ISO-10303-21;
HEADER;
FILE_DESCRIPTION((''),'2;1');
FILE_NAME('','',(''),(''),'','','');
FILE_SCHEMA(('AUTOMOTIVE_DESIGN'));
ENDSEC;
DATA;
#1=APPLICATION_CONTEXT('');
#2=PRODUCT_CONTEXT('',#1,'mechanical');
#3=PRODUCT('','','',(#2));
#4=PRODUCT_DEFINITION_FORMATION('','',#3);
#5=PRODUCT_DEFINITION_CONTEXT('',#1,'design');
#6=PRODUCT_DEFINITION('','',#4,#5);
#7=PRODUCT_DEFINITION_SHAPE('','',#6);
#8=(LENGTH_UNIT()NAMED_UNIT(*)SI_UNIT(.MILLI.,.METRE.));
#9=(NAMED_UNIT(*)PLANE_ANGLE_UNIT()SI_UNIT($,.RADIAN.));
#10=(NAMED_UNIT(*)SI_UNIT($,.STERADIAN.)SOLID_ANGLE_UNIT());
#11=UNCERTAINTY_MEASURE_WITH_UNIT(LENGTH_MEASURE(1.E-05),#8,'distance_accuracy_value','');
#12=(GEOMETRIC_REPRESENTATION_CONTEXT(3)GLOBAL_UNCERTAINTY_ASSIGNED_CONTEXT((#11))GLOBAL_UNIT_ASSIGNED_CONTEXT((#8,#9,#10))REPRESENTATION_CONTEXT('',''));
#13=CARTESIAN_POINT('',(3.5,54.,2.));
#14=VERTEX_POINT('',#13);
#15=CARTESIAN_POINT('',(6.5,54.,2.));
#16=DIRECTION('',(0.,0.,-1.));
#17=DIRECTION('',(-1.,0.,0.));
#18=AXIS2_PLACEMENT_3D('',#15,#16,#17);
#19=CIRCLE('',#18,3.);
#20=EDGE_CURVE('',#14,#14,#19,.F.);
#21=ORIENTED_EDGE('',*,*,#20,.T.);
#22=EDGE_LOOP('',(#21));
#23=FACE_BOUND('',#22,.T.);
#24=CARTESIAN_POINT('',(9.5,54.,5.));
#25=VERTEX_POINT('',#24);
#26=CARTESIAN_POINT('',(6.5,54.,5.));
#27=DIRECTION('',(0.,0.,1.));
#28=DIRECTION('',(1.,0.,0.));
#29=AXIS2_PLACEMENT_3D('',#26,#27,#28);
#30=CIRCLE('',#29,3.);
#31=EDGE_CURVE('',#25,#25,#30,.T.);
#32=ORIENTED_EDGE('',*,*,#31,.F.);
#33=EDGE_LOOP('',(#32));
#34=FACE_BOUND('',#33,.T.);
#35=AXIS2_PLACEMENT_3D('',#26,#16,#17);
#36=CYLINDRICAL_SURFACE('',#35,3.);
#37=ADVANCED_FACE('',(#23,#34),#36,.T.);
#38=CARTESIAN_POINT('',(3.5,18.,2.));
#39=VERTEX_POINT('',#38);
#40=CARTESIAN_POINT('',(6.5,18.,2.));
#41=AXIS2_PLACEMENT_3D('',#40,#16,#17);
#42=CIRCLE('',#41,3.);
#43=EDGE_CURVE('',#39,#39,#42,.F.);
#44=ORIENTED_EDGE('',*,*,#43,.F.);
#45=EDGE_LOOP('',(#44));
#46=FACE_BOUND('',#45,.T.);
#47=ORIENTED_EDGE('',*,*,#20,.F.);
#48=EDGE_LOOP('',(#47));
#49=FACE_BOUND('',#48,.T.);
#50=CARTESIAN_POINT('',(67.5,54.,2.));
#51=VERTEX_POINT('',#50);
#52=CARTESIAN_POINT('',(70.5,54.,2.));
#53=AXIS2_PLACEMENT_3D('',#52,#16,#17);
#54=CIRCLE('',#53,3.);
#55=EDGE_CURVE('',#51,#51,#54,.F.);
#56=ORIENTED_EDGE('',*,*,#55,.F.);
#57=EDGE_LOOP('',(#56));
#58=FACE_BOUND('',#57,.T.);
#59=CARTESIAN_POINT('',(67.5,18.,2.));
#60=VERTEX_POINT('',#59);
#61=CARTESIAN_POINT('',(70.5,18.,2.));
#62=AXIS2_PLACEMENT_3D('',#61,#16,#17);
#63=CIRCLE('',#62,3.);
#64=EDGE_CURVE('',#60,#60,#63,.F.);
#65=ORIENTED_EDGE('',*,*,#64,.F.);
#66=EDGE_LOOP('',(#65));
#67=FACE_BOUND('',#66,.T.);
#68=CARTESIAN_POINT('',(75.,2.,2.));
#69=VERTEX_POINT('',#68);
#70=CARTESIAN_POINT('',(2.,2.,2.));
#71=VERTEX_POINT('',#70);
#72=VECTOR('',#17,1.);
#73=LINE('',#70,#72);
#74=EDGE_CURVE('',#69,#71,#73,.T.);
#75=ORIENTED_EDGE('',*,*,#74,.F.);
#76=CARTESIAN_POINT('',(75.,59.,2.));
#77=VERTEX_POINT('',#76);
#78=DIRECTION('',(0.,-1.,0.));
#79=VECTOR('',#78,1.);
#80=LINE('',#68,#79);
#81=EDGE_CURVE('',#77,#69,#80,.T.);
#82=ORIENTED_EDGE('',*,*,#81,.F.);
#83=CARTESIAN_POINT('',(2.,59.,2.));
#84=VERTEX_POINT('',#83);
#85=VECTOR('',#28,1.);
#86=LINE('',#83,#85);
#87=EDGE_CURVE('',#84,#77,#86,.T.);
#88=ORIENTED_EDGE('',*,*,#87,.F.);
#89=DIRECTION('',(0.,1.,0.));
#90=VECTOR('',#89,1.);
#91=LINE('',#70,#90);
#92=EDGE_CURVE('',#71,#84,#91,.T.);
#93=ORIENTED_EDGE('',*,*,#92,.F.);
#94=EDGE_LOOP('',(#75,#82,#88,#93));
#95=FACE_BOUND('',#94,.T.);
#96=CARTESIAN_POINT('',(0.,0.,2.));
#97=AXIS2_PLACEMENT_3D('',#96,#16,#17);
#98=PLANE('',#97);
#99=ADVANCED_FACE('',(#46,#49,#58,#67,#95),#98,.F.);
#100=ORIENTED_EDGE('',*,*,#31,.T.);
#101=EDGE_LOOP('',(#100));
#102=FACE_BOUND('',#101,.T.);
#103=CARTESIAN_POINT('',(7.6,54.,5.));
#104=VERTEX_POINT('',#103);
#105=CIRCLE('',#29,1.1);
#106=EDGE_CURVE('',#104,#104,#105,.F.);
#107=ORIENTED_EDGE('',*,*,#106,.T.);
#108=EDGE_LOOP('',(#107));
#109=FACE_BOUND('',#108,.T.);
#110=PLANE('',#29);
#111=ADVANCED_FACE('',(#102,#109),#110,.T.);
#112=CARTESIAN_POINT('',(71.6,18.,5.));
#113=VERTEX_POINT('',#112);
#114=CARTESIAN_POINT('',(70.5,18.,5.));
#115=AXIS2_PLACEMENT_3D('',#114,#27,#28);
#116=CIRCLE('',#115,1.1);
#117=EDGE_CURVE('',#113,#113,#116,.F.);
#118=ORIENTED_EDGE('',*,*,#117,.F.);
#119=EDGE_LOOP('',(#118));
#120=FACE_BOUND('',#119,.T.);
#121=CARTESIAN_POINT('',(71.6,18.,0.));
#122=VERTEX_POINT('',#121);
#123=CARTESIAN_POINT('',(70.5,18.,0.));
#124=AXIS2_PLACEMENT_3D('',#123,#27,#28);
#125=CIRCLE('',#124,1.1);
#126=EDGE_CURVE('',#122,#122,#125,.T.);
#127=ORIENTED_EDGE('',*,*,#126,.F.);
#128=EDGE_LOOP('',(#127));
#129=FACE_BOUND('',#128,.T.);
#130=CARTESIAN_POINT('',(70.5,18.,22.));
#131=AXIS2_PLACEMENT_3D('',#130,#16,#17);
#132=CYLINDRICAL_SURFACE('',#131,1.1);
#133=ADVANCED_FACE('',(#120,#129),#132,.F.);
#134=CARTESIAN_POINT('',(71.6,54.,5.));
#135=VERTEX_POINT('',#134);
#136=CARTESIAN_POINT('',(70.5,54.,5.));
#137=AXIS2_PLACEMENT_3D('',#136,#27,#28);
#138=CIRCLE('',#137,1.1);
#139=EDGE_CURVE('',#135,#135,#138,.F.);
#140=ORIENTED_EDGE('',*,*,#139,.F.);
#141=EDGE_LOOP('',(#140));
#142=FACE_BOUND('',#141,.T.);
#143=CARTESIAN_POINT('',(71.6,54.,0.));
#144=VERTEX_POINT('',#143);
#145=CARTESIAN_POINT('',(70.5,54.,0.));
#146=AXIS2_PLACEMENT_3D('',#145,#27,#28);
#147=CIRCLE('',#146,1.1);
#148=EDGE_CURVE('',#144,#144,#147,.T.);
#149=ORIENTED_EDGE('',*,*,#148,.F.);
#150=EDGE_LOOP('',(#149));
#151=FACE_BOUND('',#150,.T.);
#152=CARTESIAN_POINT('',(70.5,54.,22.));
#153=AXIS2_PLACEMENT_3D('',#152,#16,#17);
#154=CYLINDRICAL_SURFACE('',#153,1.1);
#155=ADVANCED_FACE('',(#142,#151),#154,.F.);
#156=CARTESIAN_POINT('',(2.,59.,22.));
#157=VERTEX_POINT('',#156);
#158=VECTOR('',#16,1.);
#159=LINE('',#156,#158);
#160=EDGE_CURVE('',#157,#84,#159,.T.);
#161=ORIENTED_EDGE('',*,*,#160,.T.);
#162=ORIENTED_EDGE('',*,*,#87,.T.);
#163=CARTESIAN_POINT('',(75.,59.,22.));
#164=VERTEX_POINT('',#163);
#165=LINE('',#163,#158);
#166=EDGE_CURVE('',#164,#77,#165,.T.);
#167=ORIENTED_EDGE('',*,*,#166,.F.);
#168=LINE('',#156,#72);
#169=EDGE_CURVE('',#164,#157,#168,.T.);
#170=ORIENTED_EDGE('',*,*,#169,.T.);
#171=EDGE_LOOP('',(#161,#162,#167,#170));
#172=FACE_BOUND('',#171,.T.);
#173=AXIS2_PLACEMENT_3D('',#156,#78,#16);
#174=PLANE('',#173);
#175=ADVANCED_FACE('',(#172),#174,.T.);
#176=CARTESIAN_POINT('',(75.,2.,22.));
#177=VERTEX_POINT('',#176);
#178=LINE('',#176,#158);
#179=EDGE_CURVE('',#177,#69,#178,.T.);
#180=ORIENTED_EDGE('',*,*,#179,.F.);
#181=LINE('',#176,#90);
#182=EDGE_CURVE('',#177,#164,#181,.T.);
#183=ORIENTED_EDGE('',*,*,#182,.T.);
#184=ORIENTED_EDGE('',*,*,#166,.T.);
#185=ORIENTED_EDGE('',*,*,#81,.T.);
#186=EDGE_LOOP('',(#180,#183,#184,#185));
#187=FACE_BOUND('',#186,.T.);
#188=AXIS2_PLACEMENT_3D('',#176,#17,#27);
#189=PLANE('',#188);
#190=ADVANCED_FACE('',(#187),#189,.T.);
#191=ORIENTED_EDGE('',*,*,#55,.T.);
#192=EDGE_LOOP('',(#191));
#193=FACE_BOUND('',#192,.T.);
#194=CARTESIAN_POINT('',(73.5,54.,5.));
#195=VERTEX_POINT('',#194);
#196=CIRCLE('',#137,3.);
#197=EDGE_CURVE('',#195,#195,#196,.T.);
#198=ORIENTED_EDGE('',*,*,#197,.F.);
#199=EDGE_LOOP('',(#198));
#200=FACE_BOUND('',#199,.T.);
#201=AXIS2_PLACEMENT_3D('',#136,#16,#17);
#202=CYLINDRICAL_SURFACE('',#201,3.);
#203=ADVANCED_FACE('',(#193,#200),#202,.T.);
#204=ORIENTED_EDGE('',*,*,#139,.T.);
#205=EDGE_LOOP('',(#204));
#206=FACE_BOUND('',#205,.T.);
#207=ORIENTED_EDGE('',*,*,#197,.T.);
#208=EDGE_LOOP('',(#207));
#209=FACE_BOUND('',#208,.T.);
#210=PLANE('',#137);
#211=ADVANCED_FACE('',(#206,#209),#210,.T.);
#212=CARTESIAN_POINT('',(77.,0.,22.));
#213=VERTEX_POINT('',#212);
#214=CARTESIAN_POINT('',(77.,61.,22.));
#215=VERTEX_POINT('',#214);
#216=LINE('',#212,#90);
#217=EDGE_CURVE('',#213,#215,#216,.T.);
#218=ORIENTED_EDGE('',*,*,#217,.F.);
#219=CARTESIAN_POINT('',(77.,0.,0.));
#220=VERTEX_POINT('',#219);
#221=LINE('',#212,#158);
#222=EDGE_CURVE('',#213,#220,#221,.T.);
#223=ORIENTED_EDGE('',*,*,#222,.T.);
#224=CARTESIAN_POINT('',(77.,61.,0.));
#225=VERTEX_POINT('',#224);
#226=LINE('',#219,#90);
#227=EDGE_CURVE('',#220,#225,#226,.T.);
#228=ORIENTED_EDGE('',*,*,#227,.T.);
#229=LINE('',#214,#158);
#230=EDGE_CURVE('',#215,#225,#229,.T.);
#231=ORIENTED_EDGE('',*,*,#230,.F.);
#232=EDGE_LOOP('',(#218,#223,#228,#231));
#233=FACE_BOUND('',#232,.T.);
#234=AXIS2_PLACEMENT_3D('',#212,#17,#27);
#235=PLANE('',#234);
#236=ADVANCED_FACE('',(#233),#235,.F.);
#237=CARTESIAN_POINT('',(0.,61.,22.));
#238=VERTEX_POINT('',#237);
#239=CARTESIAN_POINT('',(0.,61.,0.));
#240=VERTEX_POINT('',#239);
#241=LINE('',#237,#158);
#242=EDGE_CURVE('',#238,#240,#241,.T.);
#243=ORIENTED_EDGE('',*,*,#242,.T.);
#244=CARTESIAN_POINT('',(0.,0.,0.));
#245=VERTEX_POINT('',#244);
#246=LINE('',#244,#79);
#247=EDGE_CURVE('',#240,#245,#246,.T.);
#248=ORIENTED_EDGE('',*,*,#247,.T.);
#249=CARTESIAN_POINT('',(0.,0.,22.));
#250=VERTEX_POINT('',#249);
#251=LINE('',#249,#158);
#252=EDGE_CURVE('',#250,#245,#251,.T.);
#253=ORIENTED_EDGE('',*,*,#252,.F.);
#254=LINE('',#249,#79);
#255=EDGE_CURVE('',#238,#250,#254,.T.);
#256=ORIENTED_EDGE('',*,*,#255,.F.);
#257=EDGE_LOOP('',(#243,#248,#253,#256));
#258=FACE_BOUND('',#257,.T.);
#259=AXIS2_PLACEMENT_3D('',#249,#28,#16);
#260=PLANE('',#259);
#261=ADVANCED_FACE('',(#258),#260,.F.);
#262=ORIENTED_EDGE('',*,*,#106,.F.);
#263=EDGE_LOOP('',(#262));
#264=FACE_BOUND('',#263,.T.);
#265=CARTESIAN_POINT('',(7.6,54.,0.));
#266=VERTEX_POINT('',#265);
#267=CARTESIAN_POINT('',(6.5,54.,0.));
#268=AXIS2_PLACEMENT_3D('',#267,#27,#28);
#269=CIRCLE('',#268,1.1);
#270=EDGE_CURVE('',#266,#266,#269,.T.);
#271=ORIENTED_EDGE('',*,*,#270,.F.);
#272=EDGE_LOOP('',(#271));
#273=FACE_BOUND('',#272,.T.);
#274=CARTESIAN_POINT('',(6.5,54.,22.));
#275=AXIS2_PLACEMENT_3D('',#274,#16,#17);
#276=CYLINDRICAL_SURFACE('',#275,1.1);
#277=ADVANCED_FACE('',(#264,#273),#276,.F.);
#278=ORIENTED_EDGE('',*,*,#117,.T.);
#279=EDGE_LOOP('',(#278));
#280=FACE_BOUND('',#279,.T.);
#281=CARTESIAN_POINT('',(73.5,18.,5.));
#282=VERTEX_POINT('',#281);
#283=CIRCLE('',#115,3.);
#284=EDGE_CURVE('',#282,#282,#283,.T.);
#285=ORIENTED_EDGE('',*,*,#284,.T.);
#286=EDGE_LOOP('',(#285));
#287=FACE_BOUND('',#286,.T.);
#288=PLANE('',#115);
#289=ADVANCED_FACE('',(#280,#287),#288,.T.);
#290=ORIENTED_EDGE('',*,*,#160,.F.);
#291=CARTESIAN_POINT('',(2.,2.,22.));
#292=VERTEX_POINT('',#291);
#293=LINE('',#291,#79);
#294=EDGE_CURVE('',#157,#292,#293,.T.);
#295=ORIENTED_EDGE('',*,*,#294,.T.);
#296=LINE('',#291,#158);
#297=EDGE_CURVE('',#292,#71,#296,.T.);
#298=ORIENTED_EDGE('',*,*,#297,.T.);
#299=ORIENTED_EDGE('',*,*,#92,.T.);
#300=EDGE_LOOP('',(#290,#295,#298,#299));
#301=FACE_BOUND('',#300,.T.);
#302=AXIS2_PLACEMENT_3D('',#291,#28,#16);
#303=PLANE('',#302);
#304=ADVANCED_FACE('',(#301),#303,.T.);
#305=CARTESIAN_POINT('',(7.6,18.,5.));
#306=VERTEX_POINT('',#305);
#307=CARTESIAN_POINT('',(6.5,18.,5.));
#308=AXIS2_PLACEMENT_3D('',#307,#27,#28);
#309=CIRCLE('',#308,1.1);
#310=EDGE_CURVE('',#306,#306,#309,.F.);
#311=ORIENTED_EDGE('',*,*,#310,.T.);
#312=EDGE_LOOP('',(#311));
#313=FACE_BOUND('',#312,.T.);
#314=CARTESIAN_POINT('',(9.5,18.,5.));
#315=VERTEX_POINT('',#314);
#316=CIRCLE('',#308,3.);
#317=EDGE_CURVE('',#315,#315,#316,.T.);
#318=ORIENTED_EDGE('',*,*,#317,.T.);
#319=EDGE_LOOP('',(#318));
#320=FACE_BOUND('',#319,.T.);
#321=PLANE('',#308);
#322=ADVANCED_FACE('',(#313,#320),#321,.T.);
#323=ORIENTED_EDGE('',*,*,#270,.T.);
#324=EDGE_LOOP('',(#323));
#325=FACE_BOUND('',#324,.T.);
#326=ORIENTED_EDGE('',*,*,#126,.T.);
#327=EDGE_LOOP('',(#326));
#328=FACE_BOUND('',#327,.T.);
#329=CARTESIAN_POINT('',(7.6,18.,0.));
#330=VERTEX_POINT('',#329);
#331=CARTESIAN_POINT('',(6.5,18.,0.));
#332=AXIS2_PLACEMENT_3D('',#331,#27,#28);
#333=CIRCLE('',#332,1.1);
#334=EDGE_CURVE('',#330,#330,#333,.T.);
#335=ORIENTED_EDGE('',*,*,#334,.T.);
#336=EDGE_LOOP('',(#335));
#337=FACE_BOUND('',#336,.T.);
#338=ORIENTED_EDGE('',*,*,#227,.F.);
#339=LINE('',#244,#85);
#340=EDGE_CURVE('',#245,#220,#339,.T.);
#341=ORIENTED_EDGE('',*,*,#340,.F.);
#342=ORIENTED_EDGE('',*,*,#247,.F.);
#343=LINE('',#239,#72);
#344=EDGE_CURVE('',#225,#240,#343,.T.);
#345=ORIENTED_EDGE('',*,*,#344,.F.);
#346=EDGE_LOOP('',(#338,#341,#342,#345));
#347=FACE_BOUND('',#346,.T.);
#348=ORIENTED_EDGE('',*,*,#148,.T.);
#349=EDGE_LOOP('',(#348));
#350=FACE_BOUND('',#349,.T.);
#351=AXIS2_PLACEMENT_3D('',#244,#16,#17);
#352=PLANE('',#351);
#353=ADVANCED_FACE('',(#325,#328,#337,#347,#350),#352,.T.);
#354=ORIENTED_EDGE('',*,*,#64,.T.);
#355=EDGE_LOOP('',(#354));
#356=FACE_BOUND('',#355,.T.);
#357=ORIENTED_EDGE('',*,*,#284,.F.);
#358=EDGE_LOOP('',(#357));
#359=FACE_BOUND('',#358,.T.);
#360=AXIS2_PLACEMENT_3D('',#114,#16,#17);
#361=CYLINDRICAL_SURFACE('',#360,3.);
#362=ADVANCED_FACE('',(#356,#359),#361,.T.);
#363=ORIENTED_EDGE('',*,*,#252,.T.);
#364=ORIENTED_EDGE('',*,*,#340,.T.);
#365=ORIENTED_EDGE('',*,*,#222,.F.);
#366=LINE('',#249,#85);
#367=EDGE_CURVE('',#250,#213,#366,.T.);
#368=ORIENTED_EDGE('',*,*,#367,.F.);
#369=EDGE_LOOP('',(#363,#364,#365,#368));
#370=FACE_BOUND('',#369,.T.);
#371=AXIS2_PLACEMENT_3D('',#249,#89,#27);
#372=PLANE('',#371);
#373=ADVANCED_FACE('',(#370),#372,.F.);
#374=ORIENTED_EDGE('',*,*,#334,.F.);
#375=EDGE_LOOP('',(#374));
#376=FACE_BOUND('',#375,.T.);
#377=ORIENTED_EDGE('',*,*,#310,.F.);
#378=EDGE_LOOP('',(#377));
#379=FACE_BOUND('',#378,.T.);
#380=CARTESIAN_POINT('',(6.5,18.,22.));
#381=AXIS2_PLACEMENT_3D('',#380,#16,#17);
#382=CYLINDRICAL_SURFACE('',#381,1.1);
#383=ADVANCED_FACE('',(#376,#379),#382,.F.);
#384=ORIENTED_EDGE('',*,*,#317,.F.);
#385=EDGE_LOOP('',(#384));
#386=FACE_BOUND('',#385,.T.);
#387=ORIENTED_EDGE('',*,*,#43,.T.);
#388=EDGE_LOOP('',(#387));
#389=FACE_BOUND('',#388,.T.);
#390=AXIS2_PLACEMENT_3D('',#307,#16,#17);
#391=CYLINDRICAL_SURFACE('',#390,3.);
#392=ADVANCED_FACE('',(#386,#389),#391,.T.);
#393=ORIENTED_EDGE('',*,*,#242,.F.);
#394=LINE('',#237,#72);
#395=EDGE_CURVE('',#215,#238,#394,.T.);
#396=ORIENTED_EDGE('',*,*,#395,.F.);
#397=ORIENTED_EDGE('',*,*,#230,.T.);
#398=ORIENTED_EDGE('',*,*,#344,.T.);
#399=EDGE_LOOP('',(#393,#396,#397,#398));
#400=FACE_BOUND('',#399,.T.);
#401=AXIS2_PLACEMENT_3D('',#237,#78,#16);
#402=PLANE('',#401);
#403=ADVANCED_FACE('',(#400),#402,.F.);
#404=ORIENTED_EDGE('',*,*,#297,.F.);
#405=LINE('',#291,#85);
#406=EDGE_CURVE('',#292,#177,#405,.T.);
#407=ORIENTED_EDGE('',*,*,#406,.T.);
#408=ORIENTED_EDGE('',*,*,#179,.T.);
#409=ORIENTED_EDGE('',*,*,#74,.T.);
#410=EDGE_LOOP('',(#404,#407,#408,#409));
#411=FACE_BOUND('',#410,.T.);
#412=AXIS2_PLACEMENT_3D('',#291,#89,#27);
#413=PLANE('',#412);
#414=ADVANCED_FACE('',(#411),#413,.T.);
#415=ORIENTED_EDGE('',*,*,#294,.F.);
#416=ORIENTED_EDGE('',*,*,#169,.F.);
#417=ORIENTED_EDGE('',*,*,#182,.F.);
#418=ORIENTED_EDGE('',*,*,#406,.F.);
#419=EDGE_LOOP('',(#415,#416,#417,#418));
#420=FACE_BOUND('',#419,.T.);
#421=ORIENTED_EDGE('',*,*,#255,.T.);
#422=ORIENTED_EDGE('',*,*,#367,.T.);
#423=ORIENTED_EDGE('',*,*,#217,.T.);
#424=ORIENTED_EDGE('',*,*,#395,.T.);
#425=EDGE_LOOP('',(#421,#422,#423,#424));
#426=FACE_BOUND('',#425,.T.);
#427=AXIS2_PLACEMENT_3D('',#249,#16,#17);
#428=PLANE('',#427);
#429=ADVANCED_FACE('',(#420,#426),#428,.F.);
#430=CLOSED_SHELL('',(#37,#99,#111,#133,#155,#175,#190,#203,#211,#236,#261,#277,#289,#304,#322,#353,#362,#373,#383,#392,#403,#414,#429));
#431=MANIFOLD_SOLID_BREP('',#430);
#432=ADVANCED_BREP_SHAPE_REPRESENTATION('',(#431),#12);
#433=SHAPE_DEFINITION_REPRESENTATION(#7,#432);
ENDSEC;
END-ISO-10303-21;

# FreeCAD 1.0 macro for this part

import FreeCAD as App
import Part
import Sketcher


def add_polygon(sketch, points):
    """Adds a closed chain of lines whose ends are joined by coincident constraints."""
    first, n = sketch.GeometryCount, len(points)
    for a, b in zip(points, points[1:] + points[:1]):
        sketch.addGeometry(Part.LineSegment(App.Vector(*a, 0), App.Vector(*b, 0)), False)
    for i in range(n):
        sketch.addConstraint(Sketcher.Constraint("Coincident", first + i, 2, first + (i + 1) % n, 1))

doc = App.newDocument("Part")
params = doc.addObject("Spreadsheet::Sheet", "Params")
for row, (alias, value) in enumerate([
    ("sketch1_width", "77 mm"),
    ("sketch1_height", "61 mm"),
    ("pad1_length", "22 mm"),
    ("sketch2_width", "73 mm"),
    ("sketch2_height", "57 mm"),
    ("sketch3_width", "77 mm"),
    ("sketch3_height", "61 mm"),
    ("pad2_length", "2 mm"),
    ("sketch4_diameter", "6 mm"),
    ("pad3_length", "5 mm"),
    ("sketch5_diameter", "2.2 mm"),
], start=1):
    params.set(f"A{row}", alias)
    params.set(f"B{row}", "=" + value)
    params.setAlias(f"B{row}", alias)

body = doc.addObject("PartDesign::Body", "Body")

sketch1 = doc.addObject("Sketcher::SketchObject", "Sketch")
body.addObject(sketch1)
sketch1.AttachmentSupport = (doc.XY_Plane, [""])
sketch1.MapMode = "FlatFace"
add_polygon(sketch1, [(0, 61), (0, 0), (77, 0), (77, 61)])
sketch1.addConstraint(Sketcher.Constraint("Vertical", 0))
sketch1.addConstraint(Sketcher.Constraint("Horizontal", 1))
sketch1.addConstraint(Sketcher.Constraint("Vertical", 2))
sketch1.addConstraint(Sketcher.Constraint("Horizontal", 3))
sketch1.addConstraint(Sketcher.Constraint("Coincident", 0, 2, -1, 1))
sketch1.addConstraint(Sketcher.Constraint("DistanceX", 1, 1, 1, 2, 77.0))
sketch1.addConstraint(Sketcher.Constraint("DistanceY", 0, 2, 0, 1, 61.0))
sketch1.setExpression("Constraints[9]", "Params.sketch1_width")
sketch1.setExpression("Constraints[10]", "Params.sketch1_height")
pad1 = doc.addObject("PartDesign::Pad", "Pad")
body.addObject(pad1)
pad1.Profile = sketch1
pad1.setExpression("Length", "Params.pad1_length")

sketch2 = doc.addObject("Sketcher::SketchObject", "Sketch001")
body.addObject(sketch2)
sketch2.AttachmentSupport = (doc.XY_Plane, [""])
sketch2.MapMode = "FlatFace"
add_polygon(sketch2, [(2, 59), (2, 2), (75, 2), (75, 59)])
sketch2.addConstraint(Sketcher.Constraint("Vertical", 0))
sketch2.addConstraint(Sketcher.Constraint("Horizontal", 1))
sketch2.addConstraint(Sketcher.Constraint("Vertical", 2))
sketch2.addConstraint(Sketcher.Constraint("Horizontal", 3))
sketch2.addConstraint(Sketcher.Constraint("DistanceX", 1, 1, 1, 2, 73.0))
sketch2.addConstraint(Sketcher.Constraint("DistanceY", 0, 2, 0, 1, 57.0))
sketch2.addConstraint(Sketcher.Constraint("DistanceX", -1, 1, 0, 2, 2.0))
sketch2.addConstraint(Sketcher.Constraint("DistanceY", -1, 1, 0, 2, 2.0))
sketch2.setExpression("Constraints[8]", "Params.sketch2_width")
sketch2.setExpression("Constraints[9]", "Params.sketch2_height")
pocket1 = doc.addObject("PartDesign::Pocket", "Pocket")
body.addObject(pocket1)
pocket1.Profile = sketch2
pocket1.Type = "ThroughAll"
pocket1.Reversed = True

sketch3 = doc.addObject("Sketcher::SketchObject", "Sketch002")
body.addObject(sketch3)
sketch3.AttachmentSupport = (doc.XY_Plane, [""])
sketch3.MapMode = "FlatFace"
add_polygon(sketch3, [(0, 61), (0, 0), (77, 0), (77, 61)])
sketch3.addConstraint(Sketcher.Constraint("Vertical", 0))
sketch3.addConstraint(Sketcher.Constraint("Horizontal", 1))
sketch3.addConstraint(Sketcher.Constraint("Vertical", 2))
sketch3.addConstraint(Sketcher.Constraint("Horizontal", 3))
sketch3.addConstraint(Sketcher.Constraint("Coincident", 0, 2, -1, 1))
sketch3.addConstraint(Sketcher.Constraint("DistanceX", 1, 1, 1, 2, 77.0))
sketch3.addConstraint(Sketcher.Constraint("DistanceY", 0, 2, 0, 1, 61.0))
sketch3.setExpression("Constraints[9]", "Params.sketch3_width")
sketch3.setExpression("Constraints[10]", "Params.sketch3_height")
pad2 = doc.addObject("PartDesign::Pad", "Pad001")
body.addObject(pad2)
pad2.Profile = sketch3
pad2.setExpression("Length", "Params.pad2_length")

sketch4 = doc.addObject("Sketcher::SketchObject", "Sketch003")
body.addObject(sketch4)
sketch4.AttachmentSupport = (doc.XY_Plane, [""])
sketch4.MapMode = "FlatFace"
sketch4.addGeometry(Part.Circle(App.Vector(6.5, 18, 0), App.Vector(0, 0, 1), 3), False)
sketch4.addGeometry(Part.Circle(App.Vector(70.5, 18, 0), App.Vector(0, 0, 1), 3), False)
sketch4.addGeometry(Part.Circle(App.Vector(6.5, 54, 0), App.Vector(0, 0, 1), 3), False)
sketch4.addGeometry(Part.Circle(App.Vector(70.5, 54, 0), App.Vector(0, 0, 1), 3), False)
sketch4.addConstraint(Sketcher.Constraint("Equal", 0, 1))
sketch4.addConstraint(Sketcher.Constraint("Equal", 1, 2))
sketch4.addConstraint(Sketcher.Constraint("Equal", 2, 3))
sketch4.addConstraint(Sketcher.Constraint("Horizontal", 0, 3, 1, 3))
sketch4.addConstraint(Sketcher.Constraint("Horizontal", 2, 3, 3, 3))
sketch4.addConstraint(Sketcher.Constraint("Vertical", 0, 3, 2, 3))
sketch4.addConstraint(Sketcher.Constraint("Vertical", 1, 3, 3, 3))
sketch4.addConstraint(Sketcher.Constraint("Diameter", 0, 6.0))
sketch4.addConstraint(Sketcher.Constraint("DistanceY", -1, 1, 0, 3, 18.0))
sketch4.addConstraint(Sketcher.Constraint("DistanceY", -1, 1, 2, 3, 54.0))
sketch4.addConstraint(Sketcher.Constraint("DistanceX", 0, 3, 1, 3, 64.0))
sketch4.addConstraint(Sketcher.Constraint("DistanceX", -1, 1, 0, 3, 6.5))
sketch4.setExpression("Constraints[7]", "Params.sketch4_diameter")
pad3 = doc.addObject("PartDesign::Pad", "Pad002")
body.addObject(pad3)
pad3.Profile = sketch4
pad3.setExpression("Length", "Params.pad3_length")

sketch5 = doc.addObject("Sketcher::SketchObject", "Sketch004")
body.addObject(sketch5)
sketch5.AttachmentSupport = (doc.XY_Plane, [""])
sketch5.MapMode = "FlatFace"
sketch5.addGeometry(Part.Circle(App.Vector(6.5, 18, 0), App.Vector(0, 0, 1), 1.1), False)
sketch5.addGeometry(Part.Circle(App.Vector(70.5, 18, 0), App.Vector(0, 0, 1), 1.1), False)
sketch5.addGeometry(Part.Circle(App.Vector(6.5, 54, 0), App.Vector(0, 0, 1), 1.1), False)
sketch5.addGeometry(Part.Circle(App.Vector(70.5, 54, 0), App.Vector(0, 0, 1), 1.1), False)
sketch5.addConstraint(Sketcher.Constraint("Equal", 0, 1))
sketch5.addConstraint(Sketcher.Constraint("Equal", 1, 2))
sketch5.addConstraint(Sketcher.Constraint("Equal", 2, 3))
sketch5.addConstraint(Sketcher.Constraint("Horizontal", 0, 3, 1, 3))
sketch5.addConstraint(Sketcher.Constraint("Horizontal", 2, 3, 3, 3))
sketch5.addConstraint(Sketcher.Constraint("Vertical", 0, 3, 2, 3))
sketch5.addConstraint(Sketcher.Constraint("Vertical", 1, 3, 3, 3))
sketch5.addConstraint(Sketcher.Constraint("Diameter", 0, 2.2))
sketch5.addConstraint(Sketcher.Constraint("DistanceY", -1, 1, 0, 3, 18.0))
sketch5.addConstraint(Sketcher.Constraint("DistanceY", -1, 1, 2, 3, 54.0))
sketch5.addConstraint(Sketcher.Constraint("DistanceX", 0, 3, 1, 3, 64.0))
sketch5.addConstraint(Sketcher.Constraint("DistanceX", -1, 1, 0, 3, 6.5))
sketch5.setExpression("Constraints[7]", "Params.sketch5_diameter")
pocket2 = doc.addObject("PartDesign::Pocket", "Pocket001")
body.addObject(pocket2)
pocket2.Profile = sketch5
pocket2.Type = "ThroughAll"
pocket2.Reversed = True

doc.recompute()
